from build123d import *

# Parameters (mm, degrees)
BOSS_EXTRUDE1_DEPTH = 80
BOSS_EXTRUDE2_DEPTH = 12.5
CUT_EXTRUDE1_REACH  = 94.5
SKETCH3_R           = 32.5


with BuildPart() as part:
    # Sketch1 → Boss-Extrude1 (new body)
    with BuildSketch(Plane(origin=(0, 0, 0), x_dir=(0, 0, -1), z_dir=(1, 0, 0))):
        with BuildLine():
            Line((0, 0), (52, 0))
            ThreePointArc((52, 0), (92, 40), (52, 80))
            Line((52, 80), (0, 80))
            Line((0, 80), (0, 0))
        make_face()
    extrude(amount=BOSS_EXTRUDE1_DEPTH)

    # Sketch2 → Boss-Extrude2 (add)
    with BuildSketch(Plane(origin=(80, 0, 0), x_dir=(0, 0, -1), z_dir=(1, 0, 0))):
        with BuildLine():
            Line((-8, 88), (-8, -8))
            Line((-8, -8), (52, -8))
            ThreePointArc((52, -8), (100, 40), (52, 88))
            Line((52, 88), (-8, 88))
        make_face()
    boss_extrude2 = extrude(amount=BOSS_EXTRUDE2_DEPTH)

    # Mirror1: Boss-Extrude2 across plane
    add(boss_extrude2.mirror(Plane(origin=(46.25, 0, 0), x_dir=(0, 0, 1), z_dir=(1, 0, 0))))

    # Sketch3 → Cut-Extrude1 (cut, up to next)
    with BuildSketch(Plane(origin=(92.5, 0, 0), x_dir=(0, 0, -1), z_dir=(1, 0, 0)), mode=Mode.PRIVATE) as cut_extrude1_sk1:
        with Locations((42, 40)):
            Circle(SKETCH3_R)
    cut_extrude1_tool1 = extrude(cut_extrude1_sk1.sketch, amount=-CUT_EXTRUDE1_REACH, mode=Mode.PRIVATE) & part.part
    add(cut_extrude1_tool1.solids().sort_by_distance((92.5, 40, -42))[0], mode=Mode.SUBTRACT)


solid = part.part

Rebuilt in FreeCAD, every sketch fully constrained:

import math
import FreeCAD as App
import Part
import Sketcher

V = App.Vector
Q = App.Units.Quantity

doc = App.newDocument("Part")
params = doc.addObject("Spreadsheet::Sheet", "Params")
for row, (alias, value) in enumerate([
    ("sketch1_radius", "40 mm"),
    ("sketch1_height", "52 mm"),
    ("pad1_length", "80 mm"),
    ("sketch2_radius", "48 mm"),
    ("sketch2_height", "60 mm"),
    ("pad2_length", "12.5 mm"),
    ("sketch3_diameter", "65 mm"),
], start=1):
    params.set(f"A{row}", alias)
    params.set(f"B{row}", "=" + value)
    params.setAlias(f"B{row}", alias)

body = doc.addObject("PartDesign::Body", "Body")

sketch1 = body.newObject("Sketcher::SketchObject", "Sketch")
sketch1.AttachmentSupport = (doc.getObject("YZ_Plane"), [""])
sketch1.MapMode = "FlatFace"
sketch1.addGeometry(Part.LineSegment(V(0, 0, 0), V(0, -52, 0)), False)
sketch1.addGeometry(Part.ArcOfCircle(Part.Circle(V(40, -52, 0), V(0, 0, 1), 40), math.radians(180), math.radians(360)), False)
sketch1.addGeometry(Part.LineSegment(V(80, -52, 0), V(80, 0, 0)), False)
sketch1.addGeometry(Part.LineSegment(V(80, 0, 0), V(0, 0, 0)), False)
sketch1.addConstraint(Sketcher.Constraint("Tangent", 0, 2, 1, 1))
sketch1.addConstraint(Sketcher.Constraint("Tangent", 1, 2, 2, 1))
sketch1.addConstraint(Sketcher.Constraint("Coincident", 2, 2, 3, 1))
sketch1.addConstraint(Sketcher.Constraint("Coincident", 3, 2, 0, 1))
sketch1.addConstraint(Sketcher.Constraint("Vertical", 0))
sketch1.addConstraint(Sketcher.Constraint("Vertical", 2))
sketch1.addConstraint(Sketcher.Constraint("Horizontal", 3))
sketch1.addConstraint(Sketcher.Constraint("Coincident", 3, 2, -1, 1))
sketch1.addConstraint(Sketcher.Constraint("Radius", 1, Q("40 mm")))
sketch1.addConstraint(Sketcher.Constraint("DistanceY", 0, 2, 0, 1, Q("52 mm")))
sketch1.setExpression("Constraints[8]", "Params.sketch1_radius")
sketch1.setExpression("Constraints[9]", "Params.sketch1_height")
pad1 = body.newObject("PartDesign::Pad", "Pad")
pad1.Profile = sketch1
pad1.setExpression("Length", "Params.pad1_length")

sketch2 = body.newObject("Sketcher::SketchObject", "Sketch001")
sketch2.AttachmentSupport = (doc.getObject("YZ_Plane"), [""])
sketch2.MapMode = "FlatFace"
sketch2.AttachmentOffset = App.Placement(V(0, 0, 80), App.Rotation())
sketch2.addGeometry(Part.LineSegment(V(88, 8, 0), V(-8, 8, 0)), False)
sketch2.addGeometry(Part.LineSegment(V(-8, 8, 0), V(-8, -52, 0)), False)
sketch2.addGeometry(Part.ArcOfCircle(Part.Circle(V(40, -52, 0), V(0, 0, 1), 48), math.radians(180), math.radians(360)), False)
sketch2.addGeometry(Part.LineSegment(V(88, -52, 0), V(88, 8, 0)), False)
sketch2.addConstraint(Sketcher.Constraint("Coincident", 0, 2, 1, 1))
sketch2.addConstraint(Sketcher.Constraint("Tangent", 1, 2, 2, 1))
sketch2.addConstraint(Sketcher.Constraint("Tangent", 2, 2, 3, 1))
sketch2.addConstraint(Sketcher.Constraint("Coincident", 3, 2, 0, 1))
sketch2.addConstraint(Sketcher.Constraint("Horizontal", 0))
sketch2.addConstraint(Sketcher.Constraint("Vertical", 1))
sketch2.addConstraint(Sketcher.Constraint("Vertical", 3))
sketch2.addConstraint(Sketcher.Constraint("Radius", 2, Q("48 mm")))
sketch2.addConstraint(Sketcher.Constraint("DistanceY", 1, 2, 1, 1, Q("60 mm")))
sketch2.addConstraint(Sketcher.Constraint("DistanceX", -1, 1, 2, 3, Q("40 mm")))
sketch2.addConstraint(Sketcher.Constraint("DistanceY", 2, 3, -1, 1, Q("52 mm")))
sketch2.setExpression("Constraints[7]", "Params.sketch2_radius")
sketch2.setExpression("Constraints[8]", "Params.sketch2_height")
pad2 = body.newObject("PartDesign::Pad", "Pad001")
pad2.Profile = sketch2
pad2.setExpression("Length", "Params.pad2_length")
doc.recompute()

datumplane = body.newObject("PartDesign::Plane", "DatumPlane")
datumplane.AttachmentSupport = (doc.getObject("YZ_Plane"), [""])
datumplane.MapMode = "FlatFace"
datumplane.AttachmentOffset = App.Placement(V(0, 0, 46.25), App.Rotation())
mirrored = body.newObject("PartDesign::Mirrored", "Mirrored")
mirrored.Originals = [pad2]
mirrored.MirrorPlane = (datumplane, [""])
body.Tip = mirrored

sketch3 = body.newObject("Sketcher::SketchObject", "Sketch002")
sketch3.AttachmentSupport = (doc.getObject("YZ_Plane"), [""])
sketch3.MapMode = "FlatFace"
sketch3.AttachmentOffset = App.Placement(V(0, 0, 92.5), App.Rotation())
sketch3.addGeometry(Part.Circle(V(40, -42, 0), V(0, 0, 1), 32.5), False)
sketch3.addConstraint(Sketcher.Constraint("Diameter", 0, Q("65 mm")))
sketch3.addConstraint(Sketcher.Constraint("DistanceX", -1, 1, 0, 3, Q("40 mm")))
sketch3.addConstraint(Sketcher.Constraint("DistanceY", 0, 3, -1, 1, Q("42 mm")))
sketch3.setExpression("Constraints[0]", "Params.sketch3_diameter")
pocket1 = body.newObject("PartDesign::Pocket", "Pocket")
pocket1.Profile = sketch3
pocket1.Type = "UpToFirst"

doc.recompute()
